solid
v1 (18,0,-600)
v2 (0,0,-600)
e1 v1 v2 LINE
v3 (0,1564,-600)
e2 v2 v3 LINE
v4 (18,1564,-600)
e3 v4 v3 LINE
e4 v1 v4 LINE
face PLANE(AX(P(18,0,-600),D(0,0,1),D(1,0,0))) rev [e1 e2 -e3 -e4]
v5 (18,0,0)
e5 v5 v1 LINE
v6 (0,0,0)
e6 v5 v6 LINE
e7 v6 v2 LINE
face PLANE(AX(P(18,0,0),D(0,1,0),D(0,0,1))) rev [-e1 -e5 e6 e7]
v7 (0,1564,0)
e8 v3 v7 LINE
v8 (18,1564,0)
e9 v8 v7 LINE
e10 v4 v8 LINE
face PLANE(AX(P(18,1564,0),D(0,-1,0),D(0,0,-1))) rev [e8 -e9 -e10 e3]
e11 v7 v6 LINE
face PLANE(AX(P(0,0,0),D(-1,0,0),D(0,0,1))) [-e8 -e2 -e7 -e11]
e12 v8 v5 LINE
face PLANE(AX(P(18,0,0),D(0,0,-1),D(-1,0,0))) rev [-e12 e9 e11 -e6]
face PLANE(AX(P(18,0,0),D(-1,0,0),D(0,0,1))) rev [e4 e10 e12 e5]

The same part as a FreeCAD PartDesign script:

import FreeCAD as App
import Part
import Sketcher

V = App.Vector

doc = App.newDocument("Part")
body = doc.addObject("PartDesign::Body", "Body")

# Sketch on YZ plane
sketch1 = body.newObject("Sketcher::SketchObject", "Sketch")
sketch1.AttachmentSupport = (doc.getObject("YZ_Plane"), [""])
sketch1.MapMode = "FlatFace"
sketch1.addGeometry(Part.LineSegment(V(1564, 0, 0), V(0, 0, 0)), False)
sketch1.addGeometry(Part.LineSegment(V(0, 0, 0), V(0, -600, 0)), False)
sketch1.addGeometry(Part.LineSegment(V(0, -600, 0), V(1564, -600, 0)), False)
sketch1.addGeometry(Part.LineSegment(V(1564, -600, 0), V(1564, 0, 0)), False)
sketch1.addConstraint(Sketcher.Constraint("Coincident", 0, 2, 1, 1))
sketch1.addConstraint(Sketcher.Constraint("Coincident", 1, 2, 2, 1))
sketch1.addConstraint(Sketcher.Constraint("Coincident", 2, 2, 3, 1))
sketch1.addConstraint(Sketcher.Constraint("Coincident", 3, 2, 0, 1))
sketch1.addConstraint(Sketcher.Constraint("Horizontal", 0))
sketch1.addConstraint(Sketcher.Constraint("Vertical", 1))
sketch1.addConstraint(Sketcher.Constraint("Horizontal", 2))
sketch1.addConstraint(Sketcher.Constraint("Vertical", 3))
sketch1.addConstraint(Sketcher.Constraint("Coincident", 0, 2, -1, 1))
sketch1.addConstraint(Sketcher.Constraint("DistanceX", 0, 2, 0, 1, 1564.0))
sketch1.addConstraint(Sketcher.Constraint("DistanceY", 1, 2, 1, 1, 600.0))
pad1 = body.newObject("PartDesign::Pad", "Pad")
pad1.Profile = sketch1
pad1.Length = 18

doc.recompute()
